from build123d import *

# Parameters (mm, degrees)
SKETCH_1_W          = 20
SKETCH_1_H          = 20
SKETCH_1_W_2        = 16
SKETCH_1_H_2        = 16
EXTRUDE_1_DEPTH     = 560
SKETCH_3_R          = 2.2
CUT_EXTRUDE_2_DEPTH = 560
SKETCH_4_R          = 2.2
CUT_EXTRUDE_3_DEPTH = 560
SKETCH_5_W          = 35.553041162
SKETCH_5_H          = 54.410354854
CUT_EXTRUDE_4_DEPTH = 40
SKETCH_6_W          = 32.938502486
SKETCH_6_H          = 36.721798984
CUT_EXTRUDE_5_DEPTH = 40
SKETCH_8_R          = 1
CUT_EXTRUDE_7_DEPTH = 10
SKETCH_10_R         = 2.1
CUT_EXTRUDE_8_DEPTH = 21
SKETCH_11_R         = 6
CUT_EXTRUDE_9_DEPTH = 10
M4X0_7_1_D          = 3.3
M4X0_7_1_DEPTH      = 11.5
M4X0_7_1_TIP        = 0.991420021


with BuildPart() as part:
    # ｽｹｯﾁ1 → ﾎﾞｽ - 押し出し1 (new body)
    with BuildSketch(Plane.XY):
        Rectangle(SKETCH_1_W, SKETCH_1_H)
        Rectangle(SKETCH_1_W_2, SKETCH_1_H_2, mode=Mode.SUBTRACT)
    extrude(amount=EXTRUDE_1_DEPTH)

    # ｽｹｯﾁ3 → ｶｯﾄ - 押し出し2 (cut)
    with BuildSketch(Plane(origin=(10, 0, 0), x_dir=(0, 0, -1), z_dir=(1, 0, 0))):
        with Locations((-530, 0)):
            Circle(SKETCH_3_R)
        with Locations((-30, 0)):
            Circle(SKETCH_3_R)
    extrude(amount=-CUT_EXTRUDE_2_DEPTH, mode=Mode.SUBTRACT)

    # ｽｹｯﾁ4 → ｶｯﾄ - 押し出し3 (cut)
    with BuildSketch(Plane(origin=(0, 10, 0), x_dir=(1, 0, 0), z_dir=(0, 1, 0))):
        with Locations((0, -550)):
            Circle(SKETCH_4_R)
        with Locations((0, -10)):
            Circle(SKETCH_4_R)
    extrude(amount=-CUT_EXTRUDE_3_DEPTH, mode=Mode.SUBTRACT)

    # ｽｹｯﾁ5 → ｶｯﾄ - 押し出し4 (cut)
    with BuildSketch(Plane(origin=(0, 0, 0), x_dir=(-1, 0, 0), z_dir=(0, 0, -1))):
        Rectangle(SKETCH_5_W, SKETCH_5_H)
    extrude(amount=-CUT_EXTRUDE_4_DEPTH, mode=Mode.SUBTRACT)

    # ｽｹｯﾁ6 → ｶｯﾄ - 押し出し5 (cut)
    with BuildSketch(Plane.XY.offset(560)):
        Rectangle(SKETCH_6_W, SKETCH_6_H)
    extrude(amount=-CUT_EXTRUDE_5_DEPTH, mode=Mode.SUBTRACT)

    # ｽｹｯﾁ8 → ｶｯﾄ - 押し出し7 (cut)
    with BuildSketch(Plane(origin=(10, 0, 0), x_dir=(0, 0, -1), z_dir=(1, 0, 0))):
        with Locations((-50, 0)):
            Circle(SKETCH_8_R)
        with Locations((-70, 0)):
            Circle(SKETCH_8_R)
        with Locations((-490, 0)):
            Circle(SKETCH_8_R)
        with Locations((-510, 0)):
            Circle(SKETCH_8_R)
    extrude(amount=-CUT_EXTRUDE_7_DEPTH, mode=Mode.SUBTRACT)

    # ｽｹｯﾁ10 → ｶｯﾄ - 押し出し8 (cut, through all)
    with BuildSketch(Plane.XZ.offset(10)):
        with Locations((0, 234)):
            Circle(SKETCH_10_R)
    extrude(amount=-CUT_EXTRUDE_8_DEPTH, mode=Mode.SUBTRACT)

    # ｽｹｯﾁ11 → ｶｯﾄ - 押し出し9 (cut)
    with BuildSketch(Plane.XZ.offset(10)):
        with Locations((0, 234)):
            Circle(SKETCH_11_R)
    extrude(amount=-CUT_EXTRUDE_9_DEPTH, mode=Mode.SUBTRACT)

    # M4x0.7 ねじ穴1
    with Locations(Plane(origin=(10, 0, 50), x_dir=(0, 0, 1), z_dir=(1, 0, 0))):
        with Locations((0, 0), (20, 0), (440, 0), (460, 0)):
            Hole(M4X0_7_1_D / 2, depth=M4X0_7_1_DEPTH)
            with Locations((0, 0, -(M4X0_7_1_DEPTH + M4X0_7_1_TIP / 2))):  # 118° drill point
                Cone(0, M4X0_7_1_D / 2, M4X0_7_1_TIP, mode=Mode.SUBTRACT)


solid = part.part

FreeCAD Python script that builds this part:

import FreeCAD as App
import Part
import Sketcher
Q = App.Units.Quantity

doc = App.newDocument("Part")
body = doc.addObject("PartDesign::Body", "Body")

# Sketch on XY plane
sketch1 = body.newObject("Sketcher::SketchObject", "Sketch")
sketch1.AttachmentSupport = (doc.getObject("XY_Plane"), [""])
sketch1.MapMode = "FlatFace"
sketch1.addGeometry(Part.LineSegment(App.Vector(-10, 10, 0), App.Vector(-10, -10, 0)), False)
sketch1.addGeometry(Part.LineSegment(App.Vector(-10, -10, 0), App.Vector(10, -10, 0)), False)
sketch1.addGeometry(Part.LineSegment(App.Vector(10, -10, 0), App.Vector(10, 10, 0)), False)
sketch1.addGeometry(Part.LineSegment(App.Vector(10, 10, 0), App.Vector(-10, 10, 0)), False)
sketch1.addGeometry(Part.LineSegment(App.Vector(8, -8, 0), App.Vector(-8, -8, 0)), False)
sketch1.addGeometry(Part.LineSegment(App.Vector(-8, -8, 0), App.Vector(-8, 8, 0)), False)
sketch1.addGeometry(Part.LineSegment(App.Vector(-8, 8, 0), App.Vector(8, 8, 0)), False)
sketch1.addGeometry(Part.LineSegment(App.Vector(8, 8, 0), App.Vector(8, -8, 0)), False)
sketch1.addConstraint(Sketcher.Constraint("Coincident", 0, 2, 1, 1))
sketch1.addConstraint(Sketcher.Constraint("Coincident", 1, 2, 2, 1))
sketch1.addConstraint(Sketcher.Constraint("Coincident", 2, 2, 3, 1))
sketch1.addConstraint(Sketcher.Constraint("Coincident", 3, 2, 0, 1))
sketch1.addConstraint(Sketcher.Constraint("Coincident", 4, 2, 5, 1))
sketch1.addConstraint(Sketcher.Constraint("Coincident", 5, 2, 6, 1))
sketch1.addConstraint(Sketcher.Constraint("Coincident", 6, 2, 7, 1))
sketch1.addConstraint(Sketcher.Constraint("Coincident", 7, 2, 4, 1))
sketch1.addConstraint(Sketcher.Constraint("Vertical", 0))
sketch1.addConstraint(Sketcher.Constraint("Horizontal", 1))
sketch1.addConstraint(Sketcher.Constraint("Vertical", 2))
sketch1.addConstraint(Sketcher.Constraint("Horizontal", 3))
sketch1.addConstraint(Sketcher.Constraint("Horizontal", 4))
sketch1.addConstraint(Sketcher.Constraint("Vertical", 5))
sketch1.addConstraint(Sketcher.Constraint("Horizontal", 6))
sketch1.addConstraint(Sketcher.Constraint("Vertical", 7))
sketch1.addConstraint(Sketcher.Constraint("Symmetric", 0, 2, 2, 2, -1, 1))
sketch1.addConstraint(Sketcher.Constraint("Symmetric", 4, 2, 6, 2, -1, 1))
sketch1.addConstraint(Sketcher.Constraint("Equal", 3, 0))
sketch1.addConstraint(Sketcher.Constraint("Equal", 6, 5))
sketch1.addConstraint(Sketcher.Constraint("DistanceX", 1, 1, 1, 2, Q("20 mm")))
sketch1.addConstraint(Sketcher.Constraint("DistanceX", 4, 2, 4, 1, Q("16 mm")))
pad1 = body.newObject("PartDesign::Pad", "Pad")
pad1.Profile = sketch1
pad1.Length = 560

# Sketch on YZ plane
sketch2 = body.newObject("Sketcher::SketchObject", "Sketch001")
sketch2.AttachmentSupport = (doc.getObject("YZ_Plane"), [""])
sketch2.MapMode = "FlatFace"
sketch2.AttachmentOffset = App.Placement(App.Vector(0, 0, 10), App.Rotation())
sketch2.addGeometry(Part.Circle(App.Vector(0, 530, 0), App.Vector(0, 0, 1), 2.2), False)
sketch2.addGeometry(Part.Circle(App.Vector(0, 30, 0), App.Vector(0, 0, 1), 2.2), False)
sketch2.addConstraint(Sketcher.Constraint("Equal", 0, 1))
sketch2.addConstraint(Sketcher.Constraint("PointOnObject", 0, 3, -2))
sketch2.addConstraint(Sketcher.Constraint("PointOnObject", 1, 3, -2))
sketch2.addConstraint(Sketcher.Constraint("Diameter", 0, Q("4.4 mm")))
sketch2.addConstraint(Sketcher.Constraint("DistanceY", -1, 1, 0, 3, Q("530 mm")))
sketch2.addConstraint(Sketcher.Constraint("DistanceY", -1, 1, 1, 3, Q("30 mm")))
pocket1 = body.newObject("PartDesign::Pocket", "Pocket")
pocket1.Profile = sketch2
pocket1.Length = 560

# Sketch on XZ plane
sketch3 = body.newObject("Sketcher::SketchObject", "Sketch002")
sketch3.AttachmentSupport = (doc.getObject("XZ_Plane"), [""])
sketch3.MapMode = "FlatFace"
sketch3.AttachmentOffset = App.Placement(App.Vector(0, 0, -10), App.Rotation())
sketch3.addGeometry(Part.Circle(App.Vector(0, 550, 0), App.Vector(0, 0, 1), 2.2), False)
sketch3.addGeometry(Part.Circle(App.Vector(0, 10, 0), App.Vector(0, 0, 1), 2.2), False)
sketch3.addConstraint(Sketcher.Constraint("Equal", 0, 1))
sketch3.addConstraint(Sketcher.Constraint("PointOnObject", 0, 3, -2))
sketch3.addConstraint(Sketcher.Constraint("PointOnObject", 1, 3, -2))
sketch3.addConstraint(Sketcher.Constraint("Diameter", 0, Q("4.4 mm")))
sketch3.addConstraint(Sketcher.Constraint("DistanceY", -1, 1, 0, 3, Q("550 mm")))
sketch3.addConstraint(Sketcher.Constraint("DistanceY", -1, 1, 1, 3, Q("10 mm")))
pocket2 = body.newObject("PartDesign::Pocket", "Pocket001")
pocket2.Profile = sketch3
pocket2.Length = 560
pocket2.Reversed = True

# Sketch on XY plane
sketch4 = body.newObject("Sketcher::SketchObject", "Sketch003")
sketch4.AttachmentSupport = (doc.getObject("XY_Plane"), [""])
sketch4.MapMode = "FlatFace"
sketch4.addGeometry(Part.LineSegment(App.Vector(17.776521, 27.205177, 0), App.Vector(17.776521, -27.205177, 0)), False)
sketch4.addGeometry(Part.LineSegment(App.Vector(17.776521, -27.205177, 0), App.Vector(-17.776521, -27.205177, 0)), False)
sketch4.addGeometry(Part.LineSegment(App.Vector(-17.776521, -27.205177, 0), App.Vector(-17.776521, 27.205177, 0)), False)
sketch4.addGeometry(Part.LineSegment(App.Vector(-17.776521, 27.205177, 0), App.Vector(17.776521, 27.205177, 0)), False)
sketch4.addConstraint(Sketcher.Constraint("Coincident", 0, 2, 1, 1))
sketch4.addConstraint(Sketcher.Constraint("Coincident", 1, 2, 2, 1))
sketch4.addConstraint(Sketcher.Constraint("Coincident", 2, 2, 3, 1))
sketch4.addConstraint(Sketcher.Constraint("Coincident", 3, 2, 0, 1))
sketch4.addConstraint(Sketcher.Constraint("Vertical", 0))
sketch4.addConstraint(Sketcher.Constraint("Horizontal", 1))
sketch4.addConstraint(Sketcher.Constraint("Vertical", 2))
sketch4.addConstraint(Sketcher.Constraint("Horizontal", 3))
sketch4.addConstraint(Sketcher.Constraint("Symmetric", 0, 2, 2, 2, -1, 1))
sketch4.addConstraint(Sketcher.Constraint("DistanceX", 1, 2, 1, 1, Q("35.553041 mm")))
sketch4.addConstraint(Sketcher.Constraint("DistanceY", 0, 2, 0, 1, Q("54.410355 mm")))
pocket3 = body.newObject("PartDesign::Pocket", "Pocket002")
pocket3.Profile = sketch4
pocket3.Length = 40
pocket3.Reversed = True

# Sketch on XY plane
sketch5 = body.newObject("Sketcher::SketchObject", "Sketch004")
sketch5.AttachmentSupport = (doc.getObject("XY_Plane"), [""])
sketch5.MapMode = "FlatFace"
sketch5.AttachmentOffset = App.Placement(App.Vector(0, 0, 560), App.Rotation())
sketch5.addGeometry(Part.LineSegment(App.Vector(-16.469251, 18.360899, 0), App.Vector(-16.469251, -18.360899, 0)), False)
sketch5.addGeometry(Part.LineSegment(App.Vector(-16.469251, -18.360899, 0), App.Vector(16.469251, -18.360899, 0)), False)
sketch5.addGeometry(Part.LineSegment(App.Vector(16.469251, -18.360899, 0), App.Vector(16.469251, 18.360899, 0)), False)
sketch5.addGeometry(Part.LineSegment(App.Vector(16.469251, 18.360899, 0), App.Vector(-16.469251, 18.360899, 0)), False)
sketch5.addConstraint(Sketcher.Constraint("Coincident", 0, 2, 1, 1))
sketch5.addConstraint(Sketcher.Constraint("Coincident", 1, 2, 2, 1))
sketch5.addConstraint(Sketcher.Constraint("Coincident", 2, 2, 3, 1))
sketch5.addConstraint(Sketcher.Constraint("Coincident", 3, 2, 0, 1))
sketch5.addConstraint(Sketcher.Constraint("Vertical", 0))
sketch5.addConstraint(Sketcher.Constraint("Horizontal", 1))
sketch5.addConstraint(Sketcher.Constraint("Vertical", 2))
sketch5.addConstraint(Sketcher.Constraint("Horizontal", 3))
sketch5.addConstraint(Sketcher.Constraint("Symmetric", 0, 2, 2, 2, -1, 1))
sketch5.addConstraint(Sketcher.Constraint("DistanceY", 0, 2, 0, 1, Q("36.721799 mm")))
sketch5.addConstraint(Sketcher.Constraint("DistanceX", 1, 1, 1, 2, Q("32.938502 mm")))
pocket4 = body.newObject("PartDesign::Pocket", "Pocket003")
pocket4.Profile = sketch5
pocket4.Length = 40

# Sketch on YZ plane
sketch6 = body.newObject("Sketcher::SketchObject", "Sketch005")
sketch6.AttachmentSupport = (doc.getObject("YZ_Plane"), [""])
sketch6.MapMode = "FlatFace"
sketch6.AttachmentOffset = App.Placement(App.Vector(0, 0, 10), App.Rotation())
sketch6.addGeometry(Part.Circle(App.Vector(0, 50, 0), App.Vector(0, 0, 1), 1), False)
sketch6.addGeometry(Part.Circle(App.Vector(0, 70, 0), App.Vector(0, 0, 1), 1), False)
sketch6.addGeometry(Part.Circle(App.Vector(0, 490, 0), App.Vector(0, 0, 1), 1), False)
sketch6.addGeometry(Part.Circle(App.Vector(0, 510, 0), App.Vector(0, 0, 1), 1), False)
sketch6.addConstraint(Sketcher.Constraint("Equal", 0, 1))
sketch6.addConstraint(Sketcher.Constraint("Equal", 1, 2))
sketch6.addConstraint(Sketcher.Constraint("Equal", 2, 3))
sketch6.addConstraint(Sketcher.Constraint("PointOnObject", 0, 3, -2))
sketch6.addConstraint(Sketcher.Constraint("PointOnObject", 1, 3, -2))
sketch6.addConstraint(Sketcher.Constraint("PointOnObject", 2, 3, -2))
sketch6.addConstraint(Sketcher.Constraint("PointOnObject", 3, 3, -2))
sketch6.addConstraint(Sketcher.Constraint("Diameter", 0, Q("2 mm")))
sketch6.addConstraint(Sketcher.Constraint("DistanceY", -1, 1, 0, 3, Q("50 mm")))
sketch6.addConstraint(Sketcher.Constraint("DistanceY", -1, 1, 1, 3, Q("70 mm")))
sketch6.addConstraint(Sketcher.Constraint("DistanceY", -1, 1, 2, 3, Q("490 mm")))
sketch6.addConstraint(Sketcher.Constraint("DistanceY", -1, 1, 3, 3, Q("510 mm")))
pocket5 = body.newObject("PartDesign::Pocket", "Pocket004")
pocket5.Profile = sketch6
pocket5.Length = 10

# Sketch on XZ plane
sketch7 = body.newObject("Sketcher::SketchObject", "Sketch006")
sketch7.AttachmentSupport = (doc.getObject("XZ_Plane"), [""])
sketch7.MapMode = "FlatFace"
sketch7.AttachmentOffset = App.Placement(App.Vector(0, 0, 10), App.Rotation())
sketch7.addGeometry(Part.Circle(App.Vector(0, 234, 0), App.Vector(0, 0, 1), 2.1), False)
sketch7.addConstraint(Sketcher.Constraint("PointOnObject", 0, 3, -2))
sketch7.addConstraint(Sketcher.Constraint("Diameter", 0, Q("4.2 mm")))
sketch7.addConstraint(Sketcher.Constraint("DistanceY", -1, 1, 0, 3, Q("234 mm")))
pocket6 = body.newObject("PartDesign::Pocket", "Pocket005")
pocket6.Profile = sketch7
pocket6.Type = "ThroughAll"

# Sketch on XZ plane
sketch8 = body.newObject("Sketcher::SketchObject", "Sketch007")
sketch8.AttachmentSupport = (doc.getObject("XZ_Plane"), [""])
sketch8.MapMode = "FlatFace"
sketch8.AttachmentOffset = App.Placement(App.Vector(0, 0, 10), App.Rotation())
sketch8.addGeometry(Part.Circle(App.Vector(0, 234, 0), App.Vector(0, 0, 1), 6), False)
sketch8.addConstraint(Sketcher.Constraint("PointOnObject", 0, 3, -2))
sketch8.addConstraint(Sketcher.Constraint("Diameter", 0, Q("12 mm")))
sketch8.addConstraint(Sketcher.Constraint("DistanceY", -1, 1, 0, 3, Q("234 mm")))
pocket7 = body.newObject("PartDesign::Pocket", "Pocket006")
pocket7.Profile = sketch8
pocket7.Length = 10

# Sketch on YZ plane
sketch9 = body.newObject("Sketcher::SketchObject", "Sketch008")
sketch9.AttachmentSupport = (doc.getObject("YZ_Plane"), [""])
sketch9.MapMode = "FlatFace"
sketch9.AttachmentOffset = App.Placement(App.Vector(0, 0, 10), App.Rotation())
sketch9.addGeometry(Part.Circle(App.Vector(0, 50, 0), App.Vector(0, 0, 1), 1.65), False)
sketch9.addGeometry(Part.Circle(App.Vector(0, 70, 0), App.Vector(0, 0, 1), 1.65), False)
sketch9.addGeometry(Part.Circle(App.Vector(0, 490, 0), App.Vector(0, 0, 1), 1.65), False)
sketch9.addGeometry(Part.Circle(App.Vector(0, 510, 0), App.Vector(0, 0, 1), 1.65), False)
sketch9.addConstraint(Sketcher.Constraint("Equal", 0, 1))
sketch9.addConstraint(Sketcher.Constraint("Equal", 1, 2))
sketch9.addConstraint(Sketcher.Constraint("Equal", 2, 3))
sketch9.addConstraint(Sketcher.Constraint("PointOnObject", 0, 3, -2))
sketch9.addConstraint(Sketcher.Constraint("PointOnObject", 1, 3, -2))
sketch9.addConstraint(Sketcher.Constraint("PointOnObject", 2, 3, -2))
sketch9.addConstraint(Sketcher.Constraint("PointOnObject", 3, 3, -2))
sketch9.addConstraint(Sketcher.Constraint("Diameter", 0, Q("3.3 mm")))
sketch9.addConstraint(Sketcher.Constraint("DistanceY", -1, 1, 0, 3, Q("50 mm")))
sketch9.addConstraint(Sketcher.Constraint("DistanceY", -1, 1, 1, 3, Q("70 mm")))
sketch9.addConstraint(Sketcher.Constraint("DistanceY", -1, 1, 2, 3, Q("490 mm")))
sketch9.addConstraint(Sketcher.Constraint("DistanceY", -1, 1, 3, 3, Q("510 mm")))
doc.recompute()
hole = body.newObject("PartDesign::Hole", "Hole")
hole.Profile = sketch9
hole.ThreadType = "None"
hole.Diameter = 3.3
hole.DepthType = "Dimension"
hole.Depth = 11.5
hole.DrillPoint = "Angled"
hole.DrillPointAngle = 118

doc.recompute()
